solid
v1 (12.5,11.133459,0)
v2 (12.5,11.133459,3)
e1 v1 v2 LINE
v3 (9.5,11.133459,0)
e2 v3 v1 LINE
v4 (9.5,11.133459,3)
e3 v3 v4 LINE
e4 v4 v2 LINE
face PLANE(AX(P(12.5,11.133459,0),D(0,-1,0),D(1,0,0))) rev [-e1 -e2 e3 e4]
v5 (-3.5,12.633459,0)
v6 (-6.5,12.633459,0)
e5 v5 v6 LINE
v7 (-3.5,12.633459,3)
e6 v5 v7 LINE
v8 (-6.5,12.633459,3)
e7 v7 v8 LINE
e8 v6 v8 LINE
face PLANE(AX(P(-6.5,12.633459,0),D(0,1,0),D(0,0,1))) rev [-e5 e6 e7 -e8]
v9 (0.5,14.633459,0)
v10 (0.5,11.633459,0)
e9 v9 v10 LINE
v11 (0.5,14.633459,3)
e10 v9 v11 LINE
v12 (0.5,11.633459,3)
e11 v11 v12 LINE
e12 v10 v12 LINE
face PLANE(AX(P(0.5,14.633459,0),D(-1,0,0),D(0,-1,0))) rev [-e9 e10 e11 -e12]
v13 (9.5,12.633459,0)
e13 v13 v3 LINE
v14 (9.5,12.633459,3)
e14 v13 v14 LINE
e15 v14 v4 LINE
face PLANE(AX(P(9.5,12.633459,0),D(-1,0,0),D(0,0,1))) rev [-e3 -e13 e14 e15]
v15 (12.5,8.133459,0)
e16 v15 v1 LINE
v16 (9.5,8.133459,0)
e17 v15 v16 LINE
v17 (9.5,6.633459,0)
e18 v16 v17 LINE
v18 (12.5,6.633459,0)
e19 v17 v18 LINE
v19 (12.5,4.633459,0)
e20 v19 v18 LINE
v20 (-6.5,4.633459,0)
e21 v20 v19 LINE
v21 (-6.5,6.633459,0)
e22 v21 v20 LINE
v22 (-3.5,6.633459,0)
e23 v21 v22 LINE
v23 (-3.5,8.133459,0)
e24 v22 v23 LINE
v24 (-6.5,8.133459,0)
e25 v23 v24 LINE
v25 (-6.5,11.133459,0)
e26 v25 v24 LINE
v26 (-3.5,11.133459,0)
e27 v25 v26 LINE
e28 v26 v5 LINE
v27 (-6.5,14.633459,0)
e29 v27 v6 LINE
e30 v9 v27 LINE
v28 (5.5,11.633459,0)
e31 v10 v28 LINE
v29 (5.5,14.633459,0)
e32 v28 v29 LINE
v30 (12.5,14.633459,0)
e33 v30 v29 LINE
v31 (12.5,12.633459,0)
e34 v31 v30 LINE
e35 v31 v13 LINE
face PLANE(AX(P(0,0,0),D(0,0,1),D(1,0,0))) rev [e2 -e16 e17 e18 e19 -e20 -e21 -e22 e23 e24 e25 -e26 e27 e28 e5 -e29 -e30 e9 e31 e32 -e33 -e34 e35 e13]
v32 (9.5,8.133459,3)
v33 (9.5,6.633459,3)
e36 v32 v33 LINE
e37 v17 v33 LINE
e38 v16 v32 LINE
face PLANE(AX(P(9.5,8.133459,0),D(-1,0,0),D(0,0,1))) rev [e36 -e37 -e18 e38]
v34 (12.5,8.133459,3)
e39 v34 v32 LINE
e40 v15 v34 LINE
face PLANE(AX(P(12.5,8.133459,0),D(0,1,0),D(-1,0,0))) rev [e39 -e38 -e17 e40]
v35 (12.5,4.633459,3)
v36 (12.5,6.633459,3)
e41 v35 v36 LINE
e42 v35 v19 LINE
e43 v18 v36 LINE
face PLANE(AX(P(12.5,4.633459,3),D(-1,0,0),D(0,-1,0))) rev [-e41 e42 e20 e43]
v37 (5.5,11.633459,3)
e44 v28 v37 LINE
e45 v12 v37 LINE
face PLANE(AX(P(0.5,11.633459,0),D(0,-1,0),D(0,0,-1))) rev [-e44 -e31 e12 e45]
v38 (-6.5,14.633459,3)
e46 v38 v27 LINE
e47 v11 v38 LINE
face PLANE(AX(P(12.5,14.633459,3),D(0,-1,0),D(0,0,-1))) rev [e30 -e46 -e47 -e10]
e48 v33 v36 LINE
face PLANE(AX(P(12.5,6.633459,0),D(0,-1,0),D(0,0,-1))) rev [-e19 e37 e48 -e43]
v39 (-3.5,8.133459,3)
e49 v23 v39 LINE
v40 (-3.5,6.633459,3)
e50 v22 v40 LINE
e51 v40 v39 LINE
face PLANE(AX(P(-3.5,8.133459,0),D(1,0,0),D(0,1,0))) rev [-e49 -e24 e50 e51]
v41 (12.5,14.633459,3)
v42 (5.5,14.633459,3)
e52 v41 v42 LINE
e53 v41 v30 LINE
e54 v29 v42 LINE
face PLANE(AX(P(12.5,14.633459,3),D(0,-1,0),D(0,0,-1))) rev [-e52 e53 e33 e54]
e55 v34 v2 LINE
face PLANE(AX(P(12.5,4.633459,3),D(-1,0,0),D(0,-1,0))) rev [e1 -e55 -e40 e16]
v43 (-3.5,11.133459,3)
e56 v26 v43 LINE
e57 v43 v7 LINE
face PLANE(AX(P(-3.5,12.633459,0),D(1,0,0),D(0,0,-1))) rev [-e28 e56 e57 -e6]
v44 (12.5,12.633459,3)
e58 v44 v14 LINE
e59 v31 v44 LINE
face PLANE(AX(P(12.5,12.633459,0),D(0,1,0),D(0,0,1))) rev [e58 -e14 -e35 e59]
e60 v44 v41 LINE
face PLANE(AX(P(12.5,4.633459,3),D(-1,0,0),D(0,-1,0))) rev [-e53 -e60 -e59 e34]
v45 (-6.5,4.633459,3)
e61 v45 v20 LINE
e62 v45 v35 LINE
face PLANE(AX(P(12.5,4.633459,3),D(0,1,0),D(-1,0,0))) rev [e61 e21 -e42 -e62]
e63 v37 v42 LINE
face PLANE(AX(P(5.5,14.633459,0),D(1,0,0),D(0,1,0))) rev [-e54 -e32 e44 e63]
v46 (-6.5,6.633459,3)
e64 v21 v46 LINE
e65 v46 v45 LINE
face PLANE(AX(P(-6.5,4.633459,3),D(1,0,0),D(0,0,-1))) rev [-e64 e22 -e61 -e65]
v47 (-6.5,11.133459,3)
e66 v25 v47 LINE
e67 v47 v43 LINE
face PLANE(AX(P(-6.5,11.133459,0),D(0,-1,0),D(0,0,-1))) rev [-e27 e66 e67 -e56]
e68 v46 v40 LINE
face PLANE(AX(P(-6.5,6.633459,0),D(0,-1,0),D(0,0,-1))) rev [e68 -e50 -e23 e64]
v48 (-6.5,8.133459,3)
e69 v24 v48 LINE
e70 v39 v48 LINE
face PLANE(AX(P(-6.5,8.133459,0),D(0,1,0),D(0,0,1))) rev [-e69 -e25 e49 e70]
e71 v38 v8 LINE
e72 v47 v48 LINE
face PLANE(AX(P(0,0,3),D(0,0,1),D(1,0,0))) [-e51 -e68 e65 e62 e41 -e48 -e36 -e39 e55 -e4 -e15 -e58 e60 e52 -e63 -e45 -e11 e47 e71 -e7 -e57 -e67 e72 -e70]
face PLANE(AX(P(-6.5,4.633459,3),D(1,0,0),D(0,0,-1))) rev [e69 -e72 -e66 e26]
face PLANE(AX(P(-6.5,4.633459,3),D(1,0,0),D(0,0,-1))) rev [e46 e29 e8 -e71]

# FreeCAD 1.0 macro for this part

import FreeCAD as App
import Part
import Sketcher

doc = App.newDocument("Part")
body = doc.addObject("PartDesign::Body", "Body")

sketch1 = body.newObject("Sketcher::SketchObject", "Sketch")
sketch1.AttachmentSupport = (doc.getObject("XY_Plane"), [""])
sketch1.MapMode = "FlatFace"
sketch1.addGeometry([
    Part.LineSegment(App.Vector(-6, 15, 0), App.Vector(-6, 5, 0)),
    Part.LineSegment(App.Vector(-6, 5, 0), App.Vector(12, 5, 0)),
    Part.LineSegment(App.Vector(12, 5, 0), App.Vector(12, 15, 0)),
    Part.LineSegment(App.Vector(12, 15, 0), App.Vector(-6, 15, 0)),
], False)
sketch1.addConstraint([
    Sketcher.Constraint("Coincident", 0, 2, 1, 1),
    Sketcher.Constraint("Coincident", 1, 2, 2, 1),
    Sketcher.Constraint("Coincident", 2, 2, 3, 1),
    Sketcher.Constraint("Coincident", 3, 2, 0, 1),
    Sketcher.Constraint("Vertical", 0),
    Sketcher.Constraint("Horizontal", 1),
    Sketcher.Constraint("Vertical", 2),
    Sketcher.Constraint("Horizontal", 3),
    Sketcher.Constraint("DistanceX", 1, 1, 1, 2, 19.0),
    Sketcher.Constraint("DistanceY", 0, 2, 0, 1, 10.0),
    Sketcher.Constraint("DistanceX", 0, 2, -1, 1, 6.5),
    Sketcher.Constraint("DistanceY", -1, 1, 0, 2, 4.633459),
])
pad1 = body.newObject("PartDesign::Pad", "Pad")
pad1.Profile = sketch1
pad1.Length = 3

sketch2 = body.newObject("Sketcher::SketchObject", "Sketch001")
sketch2.AttachmentSupport = (doc.getObject("XY_Plane"), [""])
sketch2.MapMode = "FlatFace"
sketch2.AttachmentOffset = App.Placement(App.Vector(0, 0, 3), App.Rotation())
sketch2.addGeometry([
    Part.LineSegment(App.Vector(-6.5, 12.6, 0), App.Vector(-6.5, 11.1, 0)),
    Part.LineSegment(App.Vector(-6.5, 11.1, 0), App.Vector(-3.5, 11.1, 0)),
    Part.LineSegment(App.Vector(-3.5, 11.1, 0), App.Vector(-3.5, 12.6, 0)),
    Part.LineSegment(App.Vector(-3.5, 12.6, 0), App.Vector(-6.5, 12.6, 0)),
    Part.LineSegment(App.Vector(-6.5, 8.1, 0), App.Vector(-6.5, 6.6, 0)),
    Part.LineSegment(App.Vector(-6.5, 6.6, 0), App.Vector(-3.5, 6.6, 0)),
    Part.LineSegment(App.Vector(-3.5, 6.6, 0), App.Vector(-3.5, 8.1, 0)),
    Part.LineSegment(App.Vector(-3.5, 8.1, 0), App.Vector(-6.5, 8.1, 0)),
], False)
sketch2.addConstraint([
    Sketcher.Constraint("Coincident", 0, 2, 1, 1),
    Sketcher.Constraint("Coincident", 1, 2, 2, 1),
    Sketcher.Constraint("Coincident", 2, 2, 3, 1),
    Sketcher.Constraint("Coincident", 3, 2, 0, 1),
    Sketcher.Constraint("Coincident", 4, 2, 5, 1),
    Sketcher.Constraint("Coincident", 5, 2, 6, 1),
    Sketcher.Constraint("Coincident", 6, 2, 7, 1),
    Sketcher.Constraint("Coincident", 7, 2, 4, 1),
    Sketcher.Constraint("Vertical", 0),
    Sketcher.Constraint("Horizontal", 1),
    Sketcher.Constraint("Vertical", 2),
    Sketcher.Constraint("Horizontal", 3),
    Sketcher.Constraint("Vertical", 4),
    Sketcher.Constraint("Horizontal", 5),
    Sketcher.Constraint("Vertical", 6),
    Sketcher.Constraint("Horizontal", 7),
    Sketcher.Constraint("Vertical", 3, 2, 4, 2),
    Sketcher.Constraint("Vertical", 2, 2, 5, 2),
    Sketcher.Constraint("Equal", 2, 4),
    Sketcher.Constraint("DistanceX", 1, 1, 1, 2, 3.0),
    Sketcher.Constraint("DistanceY", 0, 2, 0, 1, 1.5),
    Sketcher.Constraint("DistanceY", 4, 2, 3, 2, 6.0),
    Sketcher.Constraint("DistanceX", 0, 2, -1, 1, 6.5),
    Sketcher.Constraint("DistanceY", -1, 1, 0, 2, 11.133459),
])
pocket1 = body.newObject("PartDesign::Pocket", "Pocket")
pocket1.Profile = sketch2
pocket1.Length = 3

sketch3 = body.newObject("Sketcher::SketchObject", "Sketch002")
sketch3.AttachmentSupport = (doc.getObject("XY_Plane"), [""])
sketch3.MapMode = "FlatFace"
sketch3.AttachmentOffset = App.Placement(App.Vector(0, 0, 3), App.Rotation())
sketch3.addGeometry([
    Part.LineSegment(App.Vector(9.5, 12.6, 0), App.Vector(9.5, 11.1, 0)),
    Part.LineSegment(App.Vector(9.5, 11.1, 0), App.Vector(12.5, 11.1, 0)),
    Part.LineSegment(App.Vector(12.5, 11.1, 0), App.Vector(12.5, 12.6, 0)),
    Part.LineSegment(App.Vector(12.5, 12.6, 0), App.Vector(9.5, 12.6, 0)),
    Part.LineSegment(App.Vector(9.5, 8.1, 0), App.Vector(9.5, 6.6, 0)),
    Part.LineSegment(App.Vector(9.5, 6.6, 0), App.Vector(12.5, 6.6, 0)),
    Part.LineSegment(App.Vector(12.5, 6.6, 0), App.Vector(12.5, 8.1, 0)),
    Part.LineSegment(App.Vector(12.5, 8.1, 0), App.Vector(9.5, 8.1, 0)),
], False)
sketch3.addConstraint([
    Sketcher.Constraint("Coincident", 0, 2, 1, 1),
    Sketcher.Constraint("Coincident", 1, 2, 2, 1),
    Sketcher.Constraint("Coincident", 2, 2, 3, 1),
    Sketcher.Constraint("Coincident", 3, 2, 0, 1),
    Sketcher.Constraint("Coincident", 4, 2, 5, 1),
    Sketcher.Constraint("Coincident", 5, 2, 6, 1),
    Sketcher.Constraint("Coincident", 6, 2, 7, 1),
    Sketcher.Constraint("Coincident", 7, 2, 4, 1),
    Sketcher.Constraint("Vertical", 0),
    Sketcher.Constraint("Horizontal", 1),
    Sketcher.Constraint("Vertical", 2),
    Sketcher.Constraint("Horizontal", 3),
    Sketcher.Constraint("Vertical", 4),
    Sketcher.Constraint("Horizontal", 5),
    Sketcher.Constraint("Vertical", 6),
    Sketcher.Constraint("Horizontal", 7),
    Sketcher.Constraint("Vertical", 3, 2, 4, 2),
    Sketcher.Constraint("Vertical", 2, 2, 5, 2),
    Sketcher.Constraint("Equal", 2, 4),
    Sketcher.Constraint("DistanceX", 1, 1, 1, 2, 3.0),
    Sketcher.Constraint("DistanceY", 0, 2, 0, 1, 1.5),
    Sketcher.Constraint("DistanceY", 4, 2, 3, 2, 6.0),
    Sketcher.Constraint("DistanceX", -1, 1, 0, 2, 9.5),
    Sketcher.Constraint("DistanceY", -1, 1, 0, 2, 11.133459),
])
pocket2 = body.newObject("PartDesign::Pocket", "Pocket001")
pocket2.Profile = sketch3
pocket2.Length = 3

sketch4 = body.newObject("Sketcher::SketchObject", "Sketch003")
sketch4.AttachmentSupport = (doc.getObject("XY_Plane"), [""])
sketch4.MapMode = "FlatFace"
sketch4.AttachmentOffset = App.Placement(App.Vector(0, 0, 3), App.Rotation())
sketch4.addGeometry([
    Part.LineSegment(App.Vector(0.5, 14.6, 0), App.Vector(0.5, 11.6, 0)),
    Part.LineSegment(App.Vector(0.5, 11.6, 0), App.Vector(5.5, 11.6, 0)),
    Part.LineSegment(App.Vector(5.5, 11.6, 0), App.Vector(5.5, 14.6, 0)),
    Part.LineSegment(App.Vector(5.5, 14.6, 0), App.Vector(0.5, 14.6, 0)),
], False)
sketch4.addConstraint([
    Sketcher.Constraint("Coincident", 0, 2, 1, 1),
    Sketcher.Constraint("Coincident", 1, 2, 2, 1),
    Sketcher.Constraint("Coincident", 2, 2, 3, 1),
    Sketcher.Constraint("Coincident", 3, 2, 0, 1),
    Sketcher.Constraint("Vertical", 0),
    Sketcher.Constraint("Horizontal", 1),
    Sketcher.Constraint("Vertical", 2),
    Sketcher.Constraint("Horizontal", 3),
    Sketcher.Constraint("DistanceX", 1, 1, 1, 2, 5.0),
    Sketcher.Constraint("DistanceY", 0, 2, 0, 1, 3.0),
    Sketcher.Constraint("DistanceX", -1, 1, 0, 2, 0.5),
    Sketcher.Constraint("DistanceY", -1, 1, 0, 2, 11.633459),
])
pocket3 = body.newObject("PartDesign::Pocket", "Pocket002")
pocket3.Profile = sketch4
pocket3.Length = 3

doc.recompute()
